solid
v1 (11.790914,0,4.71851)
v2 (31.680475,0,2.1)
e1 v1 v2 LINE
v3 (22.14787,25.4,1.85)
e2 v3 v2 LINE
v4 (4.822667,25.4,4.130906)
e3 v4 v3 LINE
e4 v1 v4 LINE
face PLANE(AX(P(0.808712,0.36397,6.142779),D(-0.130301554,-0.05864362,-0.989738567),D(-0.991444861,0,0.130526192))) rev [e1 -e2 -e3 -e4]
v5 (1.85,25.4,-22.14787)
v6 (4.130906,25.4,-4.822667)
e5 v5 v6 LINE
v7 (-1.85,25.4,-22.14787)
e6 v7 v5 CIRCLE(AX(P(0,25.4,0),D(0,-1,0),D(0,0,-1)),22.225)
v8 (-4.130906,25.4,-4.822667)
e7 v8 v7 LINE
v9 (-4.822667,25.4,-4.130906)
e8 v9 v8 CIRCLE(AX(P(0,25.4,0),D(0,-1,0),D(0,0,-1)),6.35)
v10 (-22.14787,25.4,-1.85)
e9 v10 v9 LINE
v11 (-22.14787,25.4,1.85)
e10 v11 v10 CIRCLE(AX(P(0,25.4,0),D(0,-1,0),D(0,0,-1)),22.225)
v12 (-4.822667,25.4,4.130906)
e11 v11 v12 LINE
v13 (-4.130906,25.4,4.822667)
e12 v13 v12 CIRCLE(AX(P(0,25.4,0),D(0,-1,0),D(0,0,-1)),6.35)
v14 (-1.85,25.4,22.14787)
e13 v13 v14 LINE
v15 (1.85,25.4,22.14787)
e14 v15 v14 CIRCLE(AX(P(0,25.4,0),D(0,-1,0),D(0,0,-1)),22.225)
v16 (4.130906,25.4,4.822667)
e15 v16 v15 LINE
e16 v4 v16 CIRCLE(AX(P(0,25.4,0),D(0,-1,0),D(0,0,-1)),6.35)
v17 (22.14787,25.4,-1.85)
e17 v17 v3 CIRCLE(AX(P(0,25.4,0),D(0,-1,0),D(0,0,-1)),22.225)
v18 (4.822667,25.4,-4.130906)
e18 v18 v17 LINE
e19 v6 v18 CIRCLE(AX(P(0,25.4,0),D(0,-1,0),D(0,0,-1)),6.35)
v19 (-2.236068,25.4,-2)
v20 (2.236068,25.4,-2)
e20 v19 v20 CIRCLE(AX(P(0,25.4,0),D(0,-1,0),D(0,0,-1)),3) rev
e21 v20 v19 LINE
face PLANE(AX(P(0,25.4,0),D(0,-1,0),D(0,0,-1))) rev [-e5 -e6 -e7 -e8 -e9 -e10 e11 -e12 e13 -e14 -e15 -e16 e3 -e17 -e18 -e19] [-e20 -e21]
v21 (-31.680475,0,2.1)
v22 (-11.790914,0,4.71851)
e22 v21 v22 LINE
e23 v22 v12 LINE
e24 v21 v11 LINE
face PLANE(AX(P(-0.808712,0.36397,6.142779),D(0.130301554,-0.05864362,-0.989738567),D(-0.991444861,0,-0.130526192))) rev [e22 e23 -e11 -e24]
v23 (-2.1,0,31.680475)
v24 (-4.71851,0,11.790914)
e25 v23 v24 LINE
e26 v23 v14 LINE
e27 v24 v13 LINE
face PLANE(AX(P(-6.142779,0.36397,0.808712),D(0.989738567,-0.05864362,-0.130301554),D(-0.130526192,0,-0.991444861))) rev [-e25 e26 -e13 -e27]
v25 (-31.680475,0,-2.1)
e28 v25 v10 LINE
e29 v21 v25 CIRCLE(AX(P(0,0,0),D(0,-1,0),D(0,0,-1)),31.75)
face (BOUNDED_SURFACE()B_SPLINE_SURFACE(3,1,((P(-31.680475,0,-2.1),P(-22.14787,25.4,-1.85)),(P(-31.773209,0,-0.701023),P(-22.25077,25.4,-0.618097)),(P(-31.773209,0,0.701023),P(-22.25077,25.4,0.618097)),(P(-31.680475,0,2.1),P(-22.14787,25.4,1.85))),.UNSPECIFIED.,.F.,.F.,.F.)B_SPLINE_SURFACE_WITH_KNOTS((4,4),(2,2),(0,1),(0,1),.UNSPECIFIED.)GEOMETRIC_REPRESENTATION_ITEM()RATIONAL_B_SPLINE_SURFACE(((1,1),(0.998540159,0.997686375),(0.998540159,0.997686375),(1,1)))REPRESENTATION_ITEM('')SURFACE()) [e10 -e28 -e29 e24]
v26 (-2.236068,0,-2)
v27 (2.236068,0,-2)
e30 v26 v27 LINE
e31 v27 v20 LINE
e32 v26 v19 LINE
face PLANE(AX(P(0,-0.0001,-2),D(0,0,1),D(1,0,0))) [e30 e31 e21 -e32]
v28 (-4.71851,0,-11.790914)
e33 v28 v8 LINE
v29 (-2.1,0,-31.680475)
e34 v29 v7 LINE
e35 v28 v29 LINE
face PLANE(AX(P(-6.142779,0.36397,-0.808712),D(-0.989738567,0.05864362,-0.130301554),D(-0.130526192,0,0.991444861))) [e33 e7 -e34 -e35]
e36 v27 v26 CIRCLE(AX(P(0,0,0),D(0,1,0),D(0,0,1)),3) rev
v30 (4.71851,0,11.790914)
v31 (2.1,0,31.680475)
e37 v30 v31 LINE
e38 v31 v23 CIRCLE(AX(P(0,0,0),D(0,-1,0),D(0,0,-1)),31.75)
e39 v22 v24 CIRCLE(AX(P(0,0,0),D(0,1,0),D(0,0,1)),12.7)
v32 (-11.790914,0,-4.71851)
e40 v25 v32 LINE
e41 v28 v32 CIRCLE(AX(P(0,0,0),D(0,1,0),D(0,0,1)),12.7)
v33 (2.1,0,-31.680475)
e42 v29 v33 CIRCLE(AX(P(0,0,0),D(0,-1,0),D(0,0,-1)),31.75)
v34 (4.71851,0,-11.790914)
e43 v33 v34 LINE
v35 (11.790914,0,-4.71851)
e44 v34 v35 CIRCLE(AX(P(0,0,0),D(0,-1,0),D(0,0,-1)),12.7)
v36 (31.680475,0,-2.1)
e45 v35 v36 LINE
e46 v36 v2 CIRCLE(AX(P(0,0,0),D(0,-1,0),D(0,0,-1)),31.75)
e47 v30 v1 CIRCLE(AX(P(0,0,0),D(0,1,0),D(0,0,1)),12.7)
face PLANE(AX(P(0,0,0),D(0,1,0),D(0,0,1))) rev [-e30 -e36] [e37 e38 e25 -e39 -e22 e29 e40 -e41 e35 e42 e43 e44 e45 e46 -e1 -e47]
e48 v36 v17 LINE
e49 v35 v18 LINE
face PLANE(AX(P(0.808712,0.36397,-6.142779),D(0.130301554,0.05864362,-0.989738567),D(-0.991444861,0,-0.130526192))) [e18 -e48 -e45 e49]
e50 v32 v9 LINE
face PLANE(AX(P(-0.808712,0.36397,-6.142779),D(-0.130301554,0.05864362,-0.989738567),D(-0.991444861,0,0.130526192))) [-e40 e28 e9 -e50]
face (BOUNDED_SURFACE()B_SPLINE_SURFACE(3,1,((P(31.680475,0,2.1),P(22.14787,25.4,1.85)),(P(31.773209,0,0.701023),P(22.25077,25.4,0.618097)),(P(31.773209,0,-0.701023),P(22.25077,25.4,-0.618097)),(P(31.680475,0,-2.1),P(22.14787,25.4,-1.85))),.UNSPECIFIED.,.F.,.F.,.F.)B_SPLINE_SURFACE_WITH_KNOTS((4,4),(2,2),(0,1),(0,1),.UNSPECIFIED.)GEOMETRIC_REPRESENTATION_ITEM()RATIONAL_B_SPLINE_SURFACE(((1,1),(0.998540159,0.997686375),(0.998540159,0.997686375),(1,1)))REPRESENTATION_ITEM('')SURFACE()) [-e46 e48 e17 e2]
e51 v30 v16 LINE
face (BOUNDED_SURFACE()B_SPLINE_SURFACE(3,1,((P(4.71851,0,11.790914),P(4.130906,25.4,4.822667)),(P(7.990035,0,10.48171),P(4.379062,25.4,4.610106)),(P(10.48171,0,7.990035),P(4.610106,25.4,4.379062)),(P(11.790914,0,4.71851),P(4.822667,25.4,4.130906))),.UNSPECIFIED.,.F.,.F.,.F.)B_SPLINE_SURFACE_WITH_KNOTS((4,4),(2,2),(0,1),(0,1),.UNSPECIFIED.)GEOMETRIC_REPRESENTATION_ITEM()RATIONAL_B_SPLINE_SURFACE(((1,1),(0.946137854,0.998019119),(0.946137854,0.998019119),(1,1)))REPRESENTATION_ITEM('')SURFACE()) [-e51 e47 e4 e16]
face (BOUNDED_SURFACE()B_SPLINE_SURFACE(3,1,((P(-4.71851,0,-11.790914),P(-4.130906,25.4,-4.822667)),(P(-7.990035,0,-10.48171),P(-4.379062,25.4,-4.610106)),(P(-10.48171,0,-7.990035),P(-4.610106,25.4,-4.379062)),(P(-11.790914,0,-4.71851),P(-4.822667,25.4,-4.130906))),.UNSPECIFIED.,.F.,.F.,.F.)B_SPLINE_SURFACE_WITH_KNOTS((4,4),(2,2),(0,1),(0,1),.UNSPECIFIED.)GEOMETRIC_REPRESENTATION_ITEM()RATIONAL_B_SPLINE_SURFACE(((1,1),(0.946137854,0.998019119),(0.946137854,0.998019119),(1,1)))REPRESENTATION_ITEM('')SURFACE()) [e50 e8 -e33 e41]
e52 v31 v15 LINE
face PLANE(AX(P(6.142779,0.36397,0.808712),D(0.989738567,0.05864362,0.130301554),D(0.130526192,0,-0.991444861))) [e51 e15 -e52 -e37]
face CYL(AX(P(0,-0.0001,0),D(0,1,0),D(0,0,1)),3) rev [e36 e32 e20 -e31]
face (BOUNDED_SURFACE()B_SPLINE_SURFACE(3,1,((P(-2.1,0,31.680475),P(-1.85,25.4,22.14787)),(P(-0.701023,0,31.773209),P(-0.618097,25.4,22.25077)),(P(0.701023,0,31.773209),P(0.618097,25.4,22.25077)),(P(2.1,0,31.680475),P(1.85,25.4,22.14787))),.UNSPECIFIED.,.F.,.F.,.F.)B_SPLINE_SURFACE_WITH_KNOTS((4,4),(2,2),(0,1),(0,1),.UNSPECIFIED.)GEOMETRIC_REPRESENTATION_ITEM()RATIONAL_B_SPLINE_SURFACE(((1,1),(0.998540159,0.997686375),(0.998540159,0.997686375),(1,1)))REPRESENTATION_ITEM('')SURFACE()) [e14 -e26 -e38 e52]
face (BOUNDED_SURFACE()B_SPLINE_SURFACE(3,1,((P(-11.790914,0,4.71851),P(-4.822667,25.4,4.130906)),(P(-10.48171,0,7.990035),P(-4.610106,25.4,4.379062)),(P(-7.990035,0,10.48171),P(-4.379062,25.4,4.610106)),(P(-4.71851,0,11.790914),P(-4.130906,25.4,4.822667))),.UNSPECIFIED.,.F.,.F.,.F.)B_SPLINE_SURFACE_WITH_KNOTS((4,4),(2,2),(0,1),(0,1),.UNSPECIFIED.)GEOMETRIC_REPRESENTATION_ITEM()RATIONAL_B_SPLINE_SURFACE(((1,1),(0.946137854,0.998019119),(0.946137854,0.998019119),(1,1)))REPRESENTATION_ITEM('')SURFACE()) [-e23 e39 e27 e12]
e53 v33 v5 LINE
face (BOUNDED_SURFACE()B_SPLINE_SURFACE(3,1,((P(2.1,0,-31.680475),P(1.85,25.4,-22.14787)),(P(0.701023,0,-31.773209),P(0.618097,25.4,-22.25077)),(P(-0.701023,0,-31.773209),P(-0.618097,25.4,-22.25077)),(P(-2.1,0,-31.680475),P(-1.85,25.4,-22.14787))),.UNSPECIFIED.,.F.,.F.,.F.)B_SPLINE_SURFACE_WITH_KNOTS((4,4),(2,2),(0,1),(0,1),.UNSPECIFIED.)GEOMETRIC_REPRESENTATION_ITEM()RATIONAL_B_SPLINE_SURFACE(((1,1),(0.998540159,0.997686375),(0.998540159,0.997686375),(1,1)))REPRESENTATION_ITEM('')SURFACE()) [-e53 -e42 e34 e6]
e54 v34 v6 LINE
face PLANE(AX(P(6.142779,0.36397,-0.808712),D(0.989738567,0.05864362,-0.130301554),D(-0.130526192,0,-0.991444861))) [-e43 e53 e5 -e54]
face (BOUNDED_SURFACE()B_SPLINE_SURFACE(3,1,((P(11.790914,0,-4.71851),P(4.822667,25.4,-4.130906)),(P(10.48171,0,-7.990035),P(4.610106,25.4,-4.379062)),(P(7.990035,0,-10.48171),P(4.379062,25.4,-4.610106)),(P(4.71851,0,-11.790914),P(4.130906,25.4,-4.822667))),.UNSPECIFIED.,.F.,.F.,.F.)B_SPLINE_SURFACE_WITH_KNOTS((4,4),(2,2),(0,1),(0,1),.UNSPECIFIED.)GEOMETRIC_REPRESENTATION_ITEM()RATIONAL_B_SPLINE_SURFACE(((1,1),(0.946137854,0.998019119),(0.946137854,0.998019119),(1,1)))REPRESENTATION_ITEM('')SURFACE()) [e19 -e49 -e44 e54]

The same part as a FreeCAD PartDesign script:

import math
import FreeCAD as App
import Part
import Sketcher
from FreeCAD import Vector
Q = App.Units.Quantity

doc = App.newDocument("Part")
params = doc.addObject("Spreadsheet::Sheet", "Params")
for row, (alias, value) in enumerate([
    ("sketch1_radius", "0.5 in"),
    ("sketch1_radius2", "1.25 in"),
    ("sketch2_radius", "0.25 in"),
    ("sketch2_radius2", "0.875 in"),
], start=1):
    params.set(f"A{row}", alias)
    params.set(f"B{row}", "=" + value)
    params.setAlias(f"B{row}", alias)

body = doc.addObject("PartDesign::Body", "Body")

sketch1 = doc.addObject("Sketcher::SketchObject", "Sketch")
body.addObject(sketch1)
sketch1.AttachmentSupport = (doc.XZ_Plane, [""])
sketch1.MapMode = "FlatFace"
sketch1.addGeometry([
    Part.LineSegment(Vector(-2.1, -31.680475, 0), Vector(-4.71851, -11.790914, 0)),
    Part.ArcOfCircle(Part.Circle(Vector(0, 0, 0), Vector(0, 0, 1), 12.7), math.radians(-158.189607), math.radians(-111.810393)),
    Part.LineSegment(Vector(-11.790914, -4.71851, 0), Vector(-31.680475, -2.1, 0)),
    Part.ArcOfCircle(Part.Circle(Vector(0, 0, 0), Vector(0, 0, 1), 31.75), math.radians(176.207589), math.radians(183.792411)),
    Part.LineSegment(Vector(-31.680475, 2.1, 0), Vector(-11.790914, 4.71851, 0)),
    Part.ArcOfCircle(Part.Circle(Vector(0, 0, 0), Vector(0, 0, 1), 12.7), math.radians(111.810393), math.radians(158.189607)),
    Part.LineSegment(Vector(-4.71851, 11.790914, 0), Vector(-2.1, 31.680475, 0)),
    Part.ArcOfCircle(Part.Circle(Vector(0, 0, 0), Vector(0, 0, 1), 31.75), math.radians(86.207589), math.radians(93.792411)),
    Part.LineSegment(Vector(2.1, 31.680475, 0), Vector(4.71851, 11.790914, 0)),
    Part.ArcOfCircle(Part.Circle(Vector(0, 0, 0), Vector(0, 0, 1), 12.7), math.radians(21.810393), math.radians(68.189607)),
    Part.LineSegment(Vector(11.790914, 4.71851, 0), Vector(31.680475, 2.1, 0)),
    Part.ArcOfCircle(Part.Circle(Vector(0, 0, 0), Vector(0, 0, 1), 31.75), math.radians(-3.792411), math.radians(3.792411)),
    Part.LineSegment(Vector(31.680475, -2.1, 0), Vector(11.790914, -4.71851, 0)),
    Part.ArcOfCircle(Part.Circle(Vector(0, 0, 0), Vector(0, 0, 1), 12.7), math.radians(-68.189607), math.radians(-21.810393)),
    Part.LineSegment(Vector(4.71851, -11.790914, 0), Vector(2.1, -31.680475, 0)),
    Part.ArcOfCircle(Part.Circle(Vector(0, 0, 0), Vector(0, 0, 1), 31.75), math.radians(-93.792411), math.radians(-86.207589)),
], False)
sketch1.addConstraint([
    Sketcher.Constraint("Coincident", 0, 2, 1, 2),
    Sketcher.Constraint("Coincident", 1, 1, 2, 1),
    Sketcher.Constraint("Coincident", 2, 2, 3, 2),
    Sketcher.Constraint("Coincident", 3, 1, 4, 1),
    Sketcher.Constraint("Coincident", 4, 2, 5, 2),
    Sketcher.Constraint("Coincident", 5, 1, 6, 1),
    Sketcher.Constraint("Coincident", 6, 2, 7, 2),
    Sketcher.Constraint("Coincident", 7, 1, 8, 1),
    Sketcher.Constraint("Coincident", 8, 2, 9, 2),
    Sketcher.Constraint("Coincident", 9, 1, 10, 1),
    Sketcher.Constraint("Coincident", 10, 2, 11, 2),
    Sketcher.Constraint("Coincident", 11, 1, 12, 1),
    Sketcher.Constraint("Coincident", 12, 2, 13, 2),
    Sketcher.Constraint("Coincident", 13, 1, 14, 1),
    Sketcher.Constraint("Coincident", 14, 2, 15, 2),
    Sketcher.Constraint("Coincident", 15, 1, 0, 1),
    Sketcher.Constraint("Coincident", 1, 3, -1, 1),
    Sketcher.Constraint("Coincident", 3, 3, -1, 1),
    Sketcher.Constraint("Coincident", 5, 3, -1, 1),
    Sketcher.Constraint("Coincident", 7, 3, -1, 1),
    Sketcher.Constraint("Coincident", 9, 3, -1, 1),
    Sketcher.Constraint("Coincident", 11, 3, -1, 1),
    Sketcher.Constraint("Coincident", 13, 3, -1, 1),
    Sketcher.Constraint("Coincident", 15, 3, -1, 1),
    Sketcher.Constraint("Equal", 1, 5),
    Sketcher.Constraint("Equal", 3, 7),
    Sketcher.Constraint("Equal", 5, 9),
    Sketcher.Constraint("Equal", 7, 11),
    Sketcher.Constraint("Equal", 9, 13),
    Sketcher.Constraint("Equal", 11, 15),
    Sketcher.Constraint("Perpendicular", 0, 4),
    Sketcher.Constraint("Perpendicular", 2, 6),
    Sketcher.Constraint("Perpendicular", 4, 8),
    Sketcher.Constraint("Perpendicular", 6, 10),
    Sketcher.Constraint("Perpendicular", 8, 12),
    Sketcher.Constraint("Perpendicular", 10, 14),
    Sketcher.Constraint("Horizontal", 6, 2, 7, 1),
    Sketcher.Constraint("Horizontal", 5, 1, 8, 2),
    Sketcher.Constraint("Horizontal", 4, 2, 9, 1),
    Sketcher.Constraint("Horizontal", 2, 2, 11, 1),
    Sketcher.Constraint("Horizontal", 0, 2, 13, 1),
    Sketcher.Constraint("Vertical", 2, 2, 3, 1),
    Sketcher.Constraint("Vertical", 0, 2, 5, 1),
    Sketcher.Constraint("Equal", 0, 2),
    Sketcher.Constraint("Radius", 1, Q("0.5 in")),
    Sketcher.Constraint("Radius", 3, Q("1.25 in")),
    Sketcher.Constraint("Angle", 0, Q("97.5 deg")),
    Sketcher.Constraint("DistanceY", 2, 2, -1, 1, Q("2.1 mm")),
])
sketch1.setExpression("Constraints[44]", "Params.sketch1_radius")
sketch1.setExpression("Constraints[45]", "Params.sketch1_radius2")

sketch2 = doc.addObject("Sketcher::SketchObject", "Sketch001")
body.addObject(sketch2)
sketch2.AttachmentSupport = (doc.XZ_Plane, [""])
sketch2.MapMode = "FlatFace"
sketch2.AttachmentOffset = App.Placement(Vector(0, 0, -1 * 25.4), App.Rotation())
sketch2.addGeometry([
    Part.LineSegment(Vector(-1.85, -22.14787, 0), Vector(-4.130906, -4.822667, 0)),
    Part.ArcOfCircle(Part.Circle(Vector(0, 0, 0), Vector(0, 0, 1), 6.35), math.radians(-139.417943), math.radians(-130.582057)),
    Part.LineSegment(Vector(-4.822667, -4.130906, 0), Vector(-22.14787, -1.85, 0)),
    Part.ArcOfCircle(Part.Circle(Vector(0, 0, 0), Vector(0, 0, 1), 22.225), math.radians(175.225198), math.radians(184.774802)),
    Part.LineSegment(Vector(-22.14787, 1.85, 0), Vector(-4.822667, 4.130906, 0)),
    Part.ArcOfCircle(Part.Circle(Vector(0, 0, 0), Vector(0, 0, 1), 6.35), math.radians(130.582057), math.radians(139.417943)),
    Part.LineSegment(Vector(-4.130906, 4.822667, 0), Vector(-1.85, 22.14787, 0)),
    Part.ArcOfCircle(Part.Circle(Vector(0, 0, 0), Vector(0, 0, 1), 22.225), math.radians(85.225198), math.radians(94.774802)),
    Part.LineSegment(Vector(1.85, 22.14787, 0), Vector(4.130906, 4.822667, 0)),
    Part.ArcOfCircle(Part.Circle(Vector(0, 0, 0), Vector(0, 0, 1), 6.35), math.radians(40.582057), math.radians(49.417943)),
    Part.LineSegment(Vector(4.822667, 4.130906, 0), Vector(22.14787, 1.85, 0)),
    Part.ArcOfCircle(Part.Circle(Vector(0, 0, 0), Vector(0, 0, 1), 22.225), math.radians(-4.774802), math.radians(4.774802)),
    Part.LineSegment(Vector(22.14787, -1.85, 0), Vector(4.822667, -4.130906, 0)),
    Part.ArcOfCircle(Part.Circle(Vector(0, 0, 0), Vector(0, 0, 1), 6.35), math.radians(-49.417943), math.radians(-40.582057)),
    Part.LineSegment(Vector(4.130906, -4.822667, 0), Vector(1.85, -22.14787, 0)),
    Part.ArcOfCircle(Part.Circle(Vector(0, 0, 0), Vector(0, 0, 1), 22.225), math.radians(-94.774802), math.radians(-85.225198)),
], False)
sketch2.addConstraint([
    Sketcher.Constraint("Coincident", 0, 2, 1, 2),
    Sketcher.Constraint("Coincident", 1, 1, 2, 1),
    Sketcher.Constraint("Coincident", 2, 2, 3, 2),
    Sketcher.Constraint("Coincident", 3, 1, 4, 1),
    Sketcher.Constraint("Coincident", 4, 2, 5, 2),
    Sketcher.Constraint("Coincident", 5, 1, 6, 1),
    Sketcher.Constraint("Coincident", 6, 2, 7, 2),
    Sketcher.Constraint("Coincident", 7, 1, 8, 1),
    Sketcher.Constraint("Coincident", 8, 2, 9, 2),
    Sketcher.Constraint("Coincident", 9, 1, 10, 1),
    Sketcher.Constraint("Coincident", 10, 2, 11, 2),
    Sketcher.Constraint("Coincident", 11, 1, 12, 1),
    Sketcher.Constraint("Coincident", 12, 2, 13, 2),
    Sketcher.Constraint("Coincident", 13, 1, 14, 1),
    Sketcher.Constraint("Coincident", 14, 2, 15, 2),
    Sketcher.Constraint("Coincident", 15, 1, 0, 1),
    Sketcher.Constraint("Coincident", 1, 3, -1, 1),
    Sketcher.Constraint("Coincident", 3, 3, -1, 1),
    Sketcher.Constraint("Coincident", 5, 3, -1, 1),
    Sketcher.Constraint("Coincident", 7, 3, -1, 1),
    Sketcher.Constraint("Coincident", 9, 3, -1, 1),
    Sketcher.Constraint("Coincident", 11, 3, -1, 1),
    Sketcher.Constraint("Coincident", 13, 3, -1, 1),
    Sketcher.Constraint("Coincident", 15, 3, -1, 1),
    Sketcher.Constraint("Equal", 1, 5),
    Sketcher.Constraint("Equal", 3, 7),
    Sketcher.Constraint("Equal", 5, 9),
    Sketcher.Constraint("Equal", 7, 11),
    Sketcher.Constraint("Equal", 9, 13),
    Sketcher.Constraint("Equal", 11, 15),
    Sketcher.Constraint("Perpendicular", 0, 4),
    Sketcher.Constraint("Perpendicular", 2, 6),
    Sketcher.Constraint("Perpendicular", 4, 8),
    Sketcher.Constraint("Perpendicular", 6, 10),
    Sketcher.Constraint("Perpendicular", 8, 12),
    Sketcher.Constraint("Perpendicular", 10, 14),
    Sketcher.Constraint("Horizontal", 6, 2, 7, 1),
    Sketcher.Constraint("Horizontal", 5, 1, 8, 2),
    Sketcher.Constraint("Horizontal", 4, 2, 9, 1),
    Sketcher.Constraint("Horizontal", 2, 2, 11, 1),
    Sketcher.Constraint("Horizontal", 0, 2, 13, 1),
    Sketcher.Constraint("Vertical", 2, 2, 3, 1),
    Sketcher.Constraint("Vertical", 0, 2, 5, 1),
    Sketcher.Constraint("Equal", 0, 2),
    Sketcher.Constraint("Radius", 1, Q("0.25 in")),
    Sketcher.Constraint("Radius", 3, Q("0.875 in")),
    Sketcher.Constraint("Angle", 0, Q("97.5 deg")),
    Sketcher.Constraint("Distance", 0, Q("17.474701 mm")),
])
sketch2.setExpression("Constraints[44]", "Params.sketch2_radius")
sketch2.setExpression("Constraints[45]", "Params.sketch2_radius2")

additiveloft = doc.addObject("PartDesign::AdditiveLoft", "AdditiveLoft")
body.addObject(additiveloft)
additiveloft.Profile = sketch1
additiveloft.Sections = [sketch2]

sketch3 = doc.addObject("Sketcher::SketchObject", "Sketch002")
body.addObject(sketch3)
sketch3.AttachmentSupport = (doc.XZ_Plane, [""])
sketch3.MapMode = "FlatFace"
sketch3.addGeometry([
    Part.ArcOfCircle(Part.Circle(Vector(0, 0, 0), Vector(0, 0, 1), 3), math.radians(-41.810315), math.radians(221.810315)),
    Part.LineSegment(Vector(2.236068, -2, 0), Vector(-2.236068, -2, 0)),
], False)
sketch3.addConstraint([
    Sketcher.Constraint("Coincident", 0, 1, 1, 1),
    Sketcher.Constraint("Coincident", 1, 2, 0, 2),
    Sketcher.Constraint("Horizontal", 1),
    Sketcher.Constraint("Coincident", 0, 3, -1, 1),
    Sketcher.Constraint("Radius", 0, Q("3 mm")),
    Sketcher.Constraint("DistanceY", 0, 1, -1, 1, Q("2 mm")),
])
pocket1 = doc.addObject("PartDesign::Pocket", "Pocket")
body.addObject(pocket1)
pocket1.Profile = sketch3
pocket1.Type = "ThroughAll"
pocket1.Midplane = True

doc.recompute()
